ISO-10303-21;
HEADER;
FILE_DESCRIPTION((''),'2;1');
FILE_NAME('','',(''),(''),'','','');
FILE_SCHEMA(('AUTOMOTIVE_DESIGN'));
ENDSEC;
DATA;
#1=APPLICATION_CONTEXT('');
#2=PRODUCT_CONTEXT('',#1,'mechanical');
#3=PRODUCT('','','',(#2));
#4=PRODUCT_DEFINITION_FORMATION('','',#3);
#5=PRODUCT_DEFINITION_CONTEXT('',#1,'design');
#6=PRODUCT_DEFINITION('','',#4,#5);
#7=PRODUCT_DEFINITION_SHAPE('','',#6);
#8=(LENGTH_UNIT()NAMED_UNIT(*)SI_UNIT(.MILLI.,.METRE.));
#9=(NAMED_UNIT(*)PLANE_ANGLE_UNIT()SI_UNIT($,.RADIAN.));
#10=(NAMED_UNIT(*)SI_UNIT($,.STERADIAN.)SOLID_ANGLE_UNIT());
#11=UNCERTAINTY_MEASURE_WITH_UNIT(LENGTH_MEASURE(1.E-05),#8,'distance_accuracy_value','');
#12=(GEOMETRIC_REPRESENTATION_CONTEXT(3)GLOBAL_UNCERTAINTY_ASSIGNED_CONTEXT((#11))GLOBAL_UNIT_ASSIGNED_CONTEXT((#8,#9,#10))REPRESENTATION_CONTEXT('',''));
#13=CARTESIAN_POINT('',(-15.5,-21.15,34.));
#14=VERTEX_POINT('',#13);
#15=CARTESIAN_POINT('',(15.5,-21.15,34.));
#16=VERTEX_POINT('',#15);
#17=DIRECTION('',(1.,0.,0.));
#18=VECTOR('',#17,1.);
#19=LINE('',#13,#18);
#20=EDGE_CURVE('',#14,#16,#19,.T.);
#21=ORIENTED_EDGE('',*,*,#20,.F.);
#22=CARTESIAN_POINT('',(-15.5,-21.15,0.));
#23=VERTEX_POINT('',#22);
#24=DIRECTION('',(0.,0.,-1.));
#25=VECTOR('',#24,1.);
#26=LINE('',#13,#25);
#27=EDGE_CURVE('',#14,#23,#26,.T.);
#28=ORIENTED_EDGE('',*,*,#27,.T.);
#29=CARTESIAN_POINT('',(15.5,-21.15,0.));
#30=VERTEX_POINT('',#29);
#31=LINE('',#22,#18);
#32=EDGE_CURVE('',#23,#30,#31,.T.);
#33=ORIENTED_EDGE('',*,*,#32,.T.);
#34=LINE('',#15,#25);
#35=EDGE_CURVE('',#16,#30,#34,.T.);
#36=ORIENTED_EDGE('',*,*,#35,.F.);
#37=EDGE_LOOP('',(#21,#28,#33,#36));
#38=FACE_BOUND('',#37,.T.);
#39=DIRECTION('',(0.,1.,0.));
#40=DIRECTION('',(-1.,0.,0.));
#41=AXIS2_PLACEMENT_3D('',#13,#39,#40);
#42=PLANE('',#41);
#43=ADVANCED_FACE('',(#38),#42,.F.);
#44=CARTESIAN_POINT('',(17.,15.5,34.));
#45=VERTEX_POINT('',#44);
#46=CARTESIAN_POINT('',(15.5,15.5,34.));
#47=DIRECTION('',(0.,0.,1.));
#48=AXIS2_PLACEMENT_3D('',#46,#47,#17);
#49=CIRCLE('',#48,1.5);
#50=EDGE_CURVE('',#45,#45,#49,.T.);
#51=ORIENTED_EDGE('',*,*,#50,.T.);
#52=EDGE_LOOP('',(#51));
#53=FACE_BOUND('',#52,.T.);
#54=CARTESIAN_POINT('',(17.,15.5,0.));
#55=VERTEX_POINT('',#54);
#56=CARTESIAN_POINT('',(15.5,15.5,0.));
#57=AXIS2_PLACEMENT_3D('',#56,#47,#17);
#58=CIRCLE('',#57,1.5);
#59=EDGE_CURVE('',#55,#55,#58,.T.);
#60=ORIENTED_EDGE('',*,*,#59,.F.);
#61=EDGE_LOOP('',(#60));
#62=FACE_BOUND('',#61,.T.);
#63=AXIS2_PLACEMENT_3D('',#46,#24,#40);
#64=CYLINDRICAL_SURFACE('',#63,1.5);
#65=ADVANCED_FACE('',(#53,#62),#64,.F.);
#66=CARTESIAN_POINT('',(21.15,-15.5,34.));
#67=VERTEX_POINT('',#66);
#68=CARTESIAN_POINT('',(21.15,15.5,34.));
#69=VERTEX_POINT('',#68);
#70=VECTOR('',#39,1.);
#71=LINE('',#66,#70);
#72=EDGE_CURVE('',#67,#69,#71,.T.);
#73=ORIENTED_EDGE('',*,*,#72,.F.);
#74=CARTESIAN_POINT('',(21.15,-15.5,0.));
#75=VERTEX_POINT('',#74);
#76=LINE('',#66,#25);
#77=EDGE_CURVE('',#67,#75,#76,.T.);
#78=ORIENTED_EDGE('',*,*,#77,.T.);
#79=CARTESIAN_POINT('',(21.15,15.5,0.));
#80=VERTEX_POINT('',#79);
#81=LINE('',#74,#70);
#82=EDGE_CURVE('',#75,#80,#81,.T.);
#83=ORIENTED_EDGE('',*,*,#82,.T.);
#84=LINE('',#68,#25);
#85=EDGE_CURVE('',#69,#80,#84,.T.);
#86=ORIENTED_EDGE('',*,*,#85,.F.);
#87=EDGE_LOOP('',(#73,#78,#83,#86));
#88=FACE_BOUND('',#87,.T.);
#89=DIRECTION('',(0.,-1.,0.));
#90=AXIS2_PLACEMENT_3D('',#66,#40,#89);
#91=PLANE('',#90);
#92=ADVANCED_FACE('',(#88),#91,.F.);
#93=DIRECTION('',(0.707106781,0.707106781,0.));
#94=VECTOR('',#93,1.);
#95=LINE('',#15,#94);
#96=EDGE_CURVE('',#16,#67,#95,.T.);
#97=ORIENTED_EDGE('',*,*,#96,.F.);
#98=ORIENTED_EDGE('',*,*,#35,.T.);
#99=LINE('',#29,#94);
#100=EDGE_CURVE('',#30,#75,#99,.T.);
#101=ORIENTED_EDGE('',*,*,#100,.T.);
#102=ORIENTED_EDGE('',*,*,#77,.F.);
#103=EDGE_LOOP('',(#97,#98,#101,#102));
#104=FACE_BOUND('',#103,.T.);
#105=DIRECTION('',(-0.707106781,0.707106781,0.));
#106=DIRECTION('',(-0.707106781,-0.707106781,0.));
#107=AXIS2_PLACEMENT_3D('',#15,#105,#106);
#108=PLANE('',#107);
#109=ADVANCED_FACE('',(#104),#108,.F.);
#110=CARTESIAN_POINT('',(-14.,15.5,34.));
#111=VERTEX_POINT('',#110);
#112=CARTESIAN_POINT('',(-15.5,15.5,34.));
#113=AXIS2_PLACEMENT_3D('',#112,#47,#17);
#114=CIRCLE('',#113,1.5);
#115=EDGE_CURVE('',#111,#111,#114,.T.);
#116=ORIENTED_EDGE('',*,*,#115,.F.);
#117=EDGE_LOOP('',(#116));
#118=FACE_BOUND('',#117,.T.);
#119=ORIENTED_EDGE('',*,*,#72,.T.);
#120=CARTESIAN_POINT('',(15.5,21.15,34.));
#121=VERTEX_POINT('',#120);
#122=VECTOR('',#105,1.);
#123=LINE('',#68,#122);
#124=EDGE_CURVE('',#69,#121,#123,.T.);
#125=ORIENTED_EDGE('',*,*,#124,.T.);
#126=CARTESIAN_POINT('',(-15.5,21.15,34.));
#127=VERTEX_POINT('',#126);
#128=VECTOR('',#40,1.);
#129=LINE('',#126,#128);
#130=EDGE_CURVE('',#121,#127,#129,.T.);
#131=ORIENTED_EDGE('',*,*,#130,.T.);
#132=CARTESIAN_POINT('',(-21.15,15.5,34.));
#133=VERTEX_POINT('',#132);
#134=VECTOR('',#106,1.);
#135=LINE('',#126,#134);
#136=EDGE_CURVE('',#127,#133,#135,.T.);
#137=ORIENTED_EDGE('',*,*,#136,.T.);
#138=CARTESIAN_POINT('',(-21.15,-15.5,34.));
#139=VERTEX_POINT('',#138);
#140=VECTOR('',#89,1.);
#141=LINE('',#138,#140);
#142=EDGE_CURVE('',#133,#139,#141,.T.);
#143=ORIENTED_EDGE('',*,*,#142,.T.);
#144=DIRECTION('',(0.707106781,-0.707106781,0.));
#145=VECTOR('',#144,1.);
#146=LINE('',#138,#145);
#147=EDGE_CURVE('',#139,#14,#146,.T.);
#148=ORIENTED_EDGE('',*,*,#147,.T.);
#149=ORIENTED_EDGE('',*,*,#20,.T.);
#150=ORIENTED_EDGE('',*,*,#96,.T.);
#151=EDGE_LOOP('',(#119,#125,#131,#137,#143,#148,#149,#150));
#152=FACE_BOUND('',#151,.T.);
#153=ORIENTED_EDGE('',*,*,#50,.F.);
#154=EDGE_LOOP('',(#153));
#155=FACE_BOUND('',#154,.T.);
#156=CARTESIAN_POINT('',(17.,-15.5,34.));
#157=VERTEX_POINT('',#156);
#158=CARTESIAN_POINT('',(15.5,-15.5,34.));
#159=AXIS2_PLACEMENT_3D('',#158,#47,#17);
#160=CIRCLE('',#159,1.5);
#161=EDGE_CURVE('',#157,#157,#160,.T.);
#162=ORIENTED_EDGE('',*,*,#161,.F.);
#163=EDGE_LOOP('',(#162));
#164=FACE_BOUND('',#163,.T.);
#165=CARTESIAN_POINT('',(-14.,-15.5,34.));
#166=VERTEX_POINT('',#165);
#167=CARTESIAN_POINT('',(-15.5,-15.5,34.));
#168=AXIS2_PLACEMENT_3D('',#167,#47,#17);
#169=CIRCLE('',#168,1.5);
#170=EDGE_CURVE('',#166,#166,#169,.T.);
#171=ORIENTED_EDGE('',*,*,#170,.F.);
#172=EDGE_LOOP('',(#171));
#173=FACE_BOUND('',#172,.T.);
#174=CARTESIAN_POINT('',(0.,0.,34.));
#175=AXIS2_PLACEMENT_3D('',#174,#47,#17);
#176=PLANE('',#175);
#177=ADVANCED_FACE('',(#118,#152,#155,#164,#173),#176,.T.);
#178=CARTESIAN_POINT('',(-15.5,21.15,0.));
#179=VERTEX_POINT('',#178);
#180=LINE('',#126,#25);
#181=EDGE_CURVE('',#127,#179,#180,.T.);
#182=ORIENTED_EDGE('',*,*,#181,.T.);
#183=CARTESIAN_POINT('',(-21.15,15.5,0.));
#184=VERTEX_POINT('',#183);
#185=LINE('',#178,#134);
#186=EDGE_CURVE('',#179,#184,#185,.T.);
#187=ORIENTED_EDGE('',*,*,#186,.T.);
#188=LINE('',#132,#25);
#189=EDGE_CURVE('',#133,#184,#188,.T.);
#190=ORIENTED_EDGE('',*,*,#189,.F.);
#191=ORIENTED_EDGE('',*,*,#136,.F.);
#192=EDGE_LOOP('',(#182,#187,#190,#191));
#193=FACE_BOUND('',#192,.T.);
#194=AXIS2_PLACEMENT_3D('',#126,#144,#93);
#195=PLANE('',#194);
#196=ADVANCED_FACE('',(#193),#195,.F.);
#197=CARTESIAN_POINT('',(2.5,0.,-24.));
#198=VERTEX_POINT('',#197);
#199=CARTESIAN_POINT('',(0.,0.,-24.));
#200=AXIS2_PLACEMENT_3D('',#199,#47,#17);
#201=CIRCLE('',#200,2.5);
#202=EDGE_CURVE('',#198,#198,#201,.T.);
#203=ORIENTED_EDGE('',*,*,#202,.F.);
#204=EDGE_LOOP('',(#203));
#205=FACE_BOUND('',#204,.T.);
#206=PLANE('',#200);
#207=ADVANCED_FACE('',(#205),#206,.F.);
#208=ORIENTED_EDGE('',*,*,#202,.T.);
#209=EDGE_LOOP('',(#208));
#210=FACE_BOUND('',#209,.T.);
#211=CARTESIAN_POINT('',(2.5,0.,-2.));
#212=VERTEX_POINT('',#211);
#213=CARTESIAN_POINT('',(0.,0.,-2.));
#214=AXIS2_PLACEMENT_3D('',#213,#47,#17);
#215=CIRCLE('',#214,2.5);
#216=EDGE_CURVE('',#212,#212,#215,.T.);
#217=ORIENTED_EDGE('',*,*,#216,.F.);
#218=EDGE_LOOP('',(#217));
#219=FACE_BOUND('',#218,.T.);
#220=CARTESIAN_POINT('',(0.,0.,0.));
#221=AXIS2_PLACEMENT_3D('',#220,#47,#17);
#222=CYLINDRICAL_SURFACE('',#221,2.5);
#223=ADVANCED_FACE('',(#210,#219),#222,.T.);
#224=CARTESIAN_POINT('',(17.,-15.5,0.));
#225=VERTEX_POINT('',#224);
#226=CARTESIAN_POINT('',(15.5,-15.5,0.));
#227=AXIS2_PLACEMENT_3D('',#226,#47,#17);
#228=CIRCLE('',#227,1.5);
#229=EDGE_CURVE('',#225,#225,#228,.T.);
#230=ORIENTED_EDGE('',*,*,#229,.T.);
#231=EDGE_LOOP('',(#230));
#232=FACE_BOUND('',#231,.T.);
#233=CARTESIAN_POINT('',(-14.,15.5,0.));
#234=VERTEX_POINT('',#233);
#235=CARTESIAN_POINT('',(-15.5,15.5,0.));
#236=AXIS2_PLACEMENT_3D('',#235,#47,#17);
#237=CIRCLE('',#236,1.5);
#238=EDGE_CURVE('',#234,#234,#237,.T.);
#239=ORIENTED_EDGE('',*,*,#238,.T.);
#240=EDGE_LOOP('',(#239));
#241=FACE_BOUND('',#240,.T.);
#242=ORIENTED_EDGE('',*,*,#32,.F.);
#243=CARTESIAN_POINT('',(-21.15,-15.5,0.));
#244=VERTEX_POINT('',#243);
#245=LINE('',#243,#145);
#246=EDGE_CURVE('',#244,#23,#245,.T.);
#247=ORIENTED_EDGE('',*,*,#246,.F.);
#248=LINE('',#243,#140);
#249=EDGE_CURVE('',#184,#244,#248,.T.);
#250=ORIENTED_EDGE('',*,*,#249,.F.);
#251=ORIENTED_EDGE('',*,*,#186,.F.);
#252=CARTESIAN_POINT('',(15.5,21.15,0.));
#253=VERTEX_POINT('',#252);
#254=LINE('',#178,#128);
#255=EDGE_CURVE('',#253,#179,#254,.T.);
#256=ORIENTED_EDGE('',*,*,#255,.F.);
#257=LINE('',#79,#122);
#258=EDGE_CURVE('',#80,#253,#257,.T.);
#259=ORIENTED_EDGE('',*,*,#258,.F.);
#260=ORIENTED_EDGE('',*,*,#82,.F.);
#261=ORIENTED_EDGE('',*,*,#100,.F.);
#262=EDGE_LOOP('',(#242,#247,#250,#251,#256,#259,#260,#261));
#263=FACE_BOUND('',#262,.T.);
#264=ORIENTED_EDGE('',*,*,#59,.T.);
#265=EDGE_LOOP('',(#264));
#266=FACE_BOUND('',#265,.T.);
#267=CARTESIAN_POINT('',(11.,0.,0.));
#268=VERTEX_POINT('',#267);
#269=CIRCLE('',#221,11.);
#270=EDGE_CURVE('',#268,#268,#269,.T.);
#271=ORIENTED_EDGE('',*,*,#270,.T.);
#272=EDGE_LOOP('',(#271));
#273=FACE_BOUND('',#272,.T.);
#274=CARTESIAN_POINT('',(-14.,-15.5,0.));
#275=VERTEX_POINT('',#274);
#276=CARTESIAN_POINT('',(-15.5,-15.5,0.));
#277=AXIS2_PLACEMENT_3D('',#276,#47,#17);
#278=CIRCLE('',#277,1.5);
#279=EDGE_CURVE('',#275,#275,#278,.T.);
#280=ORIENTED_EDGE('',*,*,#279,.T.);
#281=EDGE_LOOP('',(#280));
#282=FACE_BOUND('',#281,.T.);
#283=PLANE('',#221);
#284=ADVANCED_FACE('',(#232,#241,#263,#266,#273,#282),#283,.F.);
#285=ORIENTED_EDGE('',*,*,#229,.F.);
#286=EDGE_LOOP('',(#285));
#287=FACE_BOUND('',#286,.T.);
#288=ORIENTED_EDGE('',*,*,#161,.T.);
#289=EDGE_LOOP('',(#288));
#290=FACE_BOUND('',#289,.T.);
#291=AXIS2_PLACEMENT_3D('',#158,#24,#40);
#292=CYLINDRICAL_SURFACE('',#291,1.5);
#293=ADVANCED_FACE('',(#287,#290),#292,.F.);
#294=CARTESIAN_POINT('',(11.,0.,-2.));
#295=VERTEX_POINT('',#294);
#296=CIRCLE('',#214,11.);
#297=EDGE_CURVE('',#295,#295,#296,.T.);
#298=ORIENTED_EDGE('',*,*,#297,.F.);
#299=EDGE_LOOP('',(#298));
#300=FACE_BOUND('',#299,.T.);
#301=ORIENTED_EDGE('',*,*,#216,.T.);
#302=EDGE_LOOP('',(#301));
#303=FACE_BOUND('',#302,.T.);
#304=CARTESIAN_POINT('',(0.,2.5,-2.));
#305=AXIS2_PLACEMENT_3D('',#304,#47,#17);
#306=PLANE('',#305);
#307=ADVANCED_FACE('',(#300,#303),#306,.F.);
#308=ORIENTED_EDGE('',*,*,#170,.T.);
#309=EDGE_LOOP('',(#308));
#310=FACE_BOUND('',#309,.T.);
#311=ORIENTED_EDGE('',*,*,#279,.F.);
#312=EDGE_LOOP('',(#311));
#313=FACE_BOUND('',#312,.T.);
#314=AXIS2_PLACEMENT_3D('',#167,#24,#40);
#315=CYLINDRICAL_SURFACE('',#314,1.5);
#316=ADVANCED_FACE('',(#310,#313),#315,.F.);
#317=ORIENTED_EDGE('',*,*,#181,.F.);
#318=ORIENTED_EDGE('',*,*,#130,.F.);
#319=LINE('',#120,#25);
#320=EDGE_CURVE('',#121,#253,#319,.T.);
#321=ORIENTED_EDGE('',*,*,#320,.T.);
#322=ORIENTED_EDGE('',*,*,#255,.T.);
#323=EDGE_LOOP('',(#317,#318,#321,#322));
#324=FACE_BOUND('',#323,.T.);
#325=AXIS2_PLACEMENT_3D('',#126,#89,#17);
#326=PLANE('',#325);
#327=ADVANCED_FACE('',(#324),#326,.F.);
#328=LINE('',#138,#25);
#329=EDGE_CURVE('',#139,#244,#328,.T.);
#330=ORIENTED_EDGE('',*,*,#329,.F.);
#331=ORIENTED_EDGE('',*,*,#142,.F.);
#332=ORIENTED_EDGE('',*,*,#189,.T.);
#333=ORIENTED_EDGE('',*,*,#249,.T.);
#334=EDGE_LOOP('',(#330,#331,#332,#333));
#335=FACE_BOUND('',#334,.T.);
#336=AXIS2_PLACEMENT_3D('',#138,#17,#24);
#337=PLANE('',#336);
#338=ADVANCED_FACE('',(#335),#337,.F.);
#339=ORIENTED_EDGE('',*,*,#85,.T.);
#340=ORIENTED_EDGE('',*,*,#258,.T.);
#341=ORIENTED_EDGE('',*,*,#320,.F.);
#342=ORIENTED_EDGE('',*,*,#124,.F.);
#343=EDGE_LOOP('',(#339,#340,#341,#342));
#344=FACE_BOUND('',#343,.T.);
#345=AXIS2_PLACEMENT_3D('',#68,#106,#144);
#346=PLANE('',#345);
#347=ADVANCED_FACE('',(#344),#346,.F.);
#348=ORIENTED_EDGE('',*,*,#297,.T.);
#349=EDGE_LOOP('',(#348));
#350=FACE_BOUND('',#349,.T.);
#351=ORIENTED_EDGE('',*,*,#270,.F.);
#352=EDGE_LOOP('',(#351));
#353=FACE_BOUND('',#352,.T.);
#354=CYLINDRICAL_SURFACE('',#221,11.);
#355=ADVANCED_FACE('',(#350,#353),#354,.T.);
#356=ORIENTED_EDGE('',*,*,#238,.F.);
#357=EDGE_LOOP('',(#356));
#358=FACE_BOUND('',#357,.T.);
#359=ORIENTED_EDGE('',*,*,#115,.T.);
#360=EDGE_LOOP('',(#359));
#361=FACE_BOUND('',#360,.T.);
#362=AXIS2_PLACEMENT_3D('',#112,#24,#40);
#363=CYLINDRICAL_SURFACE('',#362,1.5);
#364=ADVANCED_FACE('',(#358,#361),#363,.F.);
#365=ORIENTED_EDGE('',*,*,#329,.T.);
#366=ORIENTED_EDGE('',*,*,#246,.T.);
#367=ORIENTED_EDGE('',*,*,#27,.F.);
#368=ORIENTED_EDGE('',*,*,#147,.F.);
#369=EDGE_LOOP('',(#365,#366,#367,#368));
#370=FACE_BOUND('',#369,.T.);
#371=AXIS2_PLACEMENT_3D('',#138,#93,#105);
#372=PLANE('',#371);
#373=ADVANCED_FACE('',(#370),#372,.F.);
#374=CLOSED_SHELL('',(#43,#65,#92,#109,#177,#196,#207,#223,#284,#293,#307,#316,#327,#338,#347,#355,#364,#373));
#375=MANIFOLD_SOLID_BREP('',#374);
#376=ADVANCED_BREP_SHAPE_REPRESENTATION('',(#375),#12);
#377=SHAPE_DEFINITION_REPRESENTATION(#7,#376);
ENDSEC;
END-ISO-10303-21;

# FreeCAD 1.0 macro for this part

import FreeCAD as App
import Part
import Sketcher


def add_polygon(sketch, points):
    """Adds a closed chain of lines whose ends are joined by coincident constraints."""
    first, n = sketch.GeometryCount, len(points)
    for a, b in zip(points, points[1:] + points[:1]):
        sketch.addGeometry(Part.LineSegment(App.Vector(*a, 0), App.Vector(*b, 0)), False)
    for i in range(n):
        sketch.addConstraint(Sketcher.Constraint("Coincident", first + i, 2, first + (i + 1) % n, 1))

doc = App.newDocument("Part")
body = doc.addObject("PartDesign::Body", "Body")

# Sketch on XY plane
sketch1 = body.newObject("Sketcher::SketchObject", "Sketch")
sketch1.AttachmentSupport = (doc.getObject("XY_Plane"), [""])
sketch1.MapMode = "FlatFace"
add_polygon(sketch1, [(-15.5, 21.1), (-21.1, 15.5), (-21.1, -15.5), (-15.5, -21.1), (15.5, -21.1), (21.1, -15.5), (21.1, 15.5), (15.5, 21.1)])  # lines 0-7
sketch1.addGeometry(Part.Circle(App.Vector(-15.5, -15.5, 0), App.Vector(0, 0, 1), 1.5), False)  # 8
sketch1.addGeometry(Part.Circle(App.Vector(15.5, -15.5, 0), App.Vector(0, 0, 1), 1.5), False)  # 9
sketch1.addGeometry(Part.Circle(App.Vector(-15.5, 15.5, 0), App.Vector(0, 0, 1), 1.5), False)  # 10
sketch1.addGeometry(Part.Circle(App.Vector(15.5, 15.5, 0), App.Vector(0, 0, 1), 1.5), False)  # 11
sketch1.addConstraint(Sketcher.Constraint("Vertical", 1))
sketch1.addConstraint(Sketcher.Constraint("Horizontal", 3))
sketch1.addConstraint(Sketcher.Constraint("Vertical", 5))
sketch1.addConstraint(Sketcher.Constraint("Horizontal", 7))
sketch1.addConstraint(Sketcher.Constraint("Equal", 8, 9))
sketch1.addConstraint(Sketcher.Constraint("Equal", 9, 10))
sketch1.addConstraint(Sketcher.Constraint("Equal", 10, 11))
sketch1.addConstraint(Sketcher.Constraint("Symmetric", 9, 3, 10, 3, -1, 1))
sketch1.addConstraint(Sketcher.Constraint("Symmetric", 8, 3, 11, 3, -1, 1))
sketch1.addConstraint(Sketcher.Constraint("Symmetric", 0, 2, 4, 2, -1, 1))
sketch1.addConstraint(Sketcher.Constraint("Symmetric", 2, 2, 6, 2, -1, 1))
sketch1.addConstraint(Sketcher.Constraint("Symmetric", 8, 3, 9, 3, -2))
sketch1.addConstraint(Sketcher.Constraint("Perpendicular", 0, 2))
sketch1.addConstraint(Sketcher.Constraint("Perpendicular", 2, 4))
sketch1.addConstraint(Sketcher.Constraint("Perpendicular", 4, 6))
sketch1.addConstraint(Sketcher.Constraint("Horizontal", 11, 3, 0, 2))
sketch1.addConstraint(Sketcher.Constraint("Horizontal", 9, 3, 1, 2))
sketch1.addConstraint(Sketcher.Constraint("Vertical", 10, 3, 2, 2))
sketch1.addConstraint(Sketcher.Constraint("Vertical", 11, 3, 3, 2))
sketch1.addConstraint(Sketcher.Constraint("Equal", 7, 1))
sketch1.addConstraint(Sketcher.Constraint("Diameter", 8, 3.0))
sketch1.addConstraint(Sketcher.Constraint("DistanceX", 3, 1, 3, 2, 31.0))
sketch1.addConstraint(Sketcher.Constraint("DistanceX", 0, 2, -1, 1, 21.15))
pad1 = body.newObject("PartDesign::Pad", "Pad")
pad1.Profile = sketch1
pad1.Length = 34

# Sketch on YZ plane
sketch2 = body.newObject("Sketcher::SketchObject", "Sketch001")
sketch2.AttachmentSupport = (doc.getObject("YZ_Plane"), [""])
sketch2.MapMode = "FlatFace"
add_polygon(sketch2, [(0, 0), (0, -24), (2.5, -24), (2.5, -2), (11, -2), (11, 0)])  # lines 0-5
sketch2.addConstraint(Sketcher.Constraint("Vertical", 0))
sketch2.addConstraint(Sketcher.Constraint("Horizontal", 1))
sketch2.addConstraint(Sketcher.Constraint("Vertical", 2))
sketch2.addConstraint(Sketcher.Constraint("Horizontal", 3))
sketch2.addConstraint(Sketcher.Constraint("Vertical", 4))
sketch2.addConstraint(Sketcher.Constraint("Horizontal", 5))
sketch2.addConstraint(Sketcher.Constraint("Coincident", 5, 2, -1, 1))
sketch2.addConstraint(Sketcher.Constraint("DistanceX", 5, 2, 5, 1, 11.0))
sketch2.addConstraint(Sketcher.Constraint("DistanceY", 0, 2, 0, 1, 24.0))
sketch2.addConstraint(Sketcher.Constraint("DistanceY", 2, 1, 2, 2, 22.0))
sketch2.addConstraint(Sketcher.Constraint("DistanceX", 1, 1, 1, 2, 2.5))
revolution = body.newObject("PartDesign::Revolution", "Revolution")
revolution.Profile = sketch2
revolution.ReferenceAxis = (sketch2, ["V_Axis"])
revolution.Angle = 360

doc.recompute()
